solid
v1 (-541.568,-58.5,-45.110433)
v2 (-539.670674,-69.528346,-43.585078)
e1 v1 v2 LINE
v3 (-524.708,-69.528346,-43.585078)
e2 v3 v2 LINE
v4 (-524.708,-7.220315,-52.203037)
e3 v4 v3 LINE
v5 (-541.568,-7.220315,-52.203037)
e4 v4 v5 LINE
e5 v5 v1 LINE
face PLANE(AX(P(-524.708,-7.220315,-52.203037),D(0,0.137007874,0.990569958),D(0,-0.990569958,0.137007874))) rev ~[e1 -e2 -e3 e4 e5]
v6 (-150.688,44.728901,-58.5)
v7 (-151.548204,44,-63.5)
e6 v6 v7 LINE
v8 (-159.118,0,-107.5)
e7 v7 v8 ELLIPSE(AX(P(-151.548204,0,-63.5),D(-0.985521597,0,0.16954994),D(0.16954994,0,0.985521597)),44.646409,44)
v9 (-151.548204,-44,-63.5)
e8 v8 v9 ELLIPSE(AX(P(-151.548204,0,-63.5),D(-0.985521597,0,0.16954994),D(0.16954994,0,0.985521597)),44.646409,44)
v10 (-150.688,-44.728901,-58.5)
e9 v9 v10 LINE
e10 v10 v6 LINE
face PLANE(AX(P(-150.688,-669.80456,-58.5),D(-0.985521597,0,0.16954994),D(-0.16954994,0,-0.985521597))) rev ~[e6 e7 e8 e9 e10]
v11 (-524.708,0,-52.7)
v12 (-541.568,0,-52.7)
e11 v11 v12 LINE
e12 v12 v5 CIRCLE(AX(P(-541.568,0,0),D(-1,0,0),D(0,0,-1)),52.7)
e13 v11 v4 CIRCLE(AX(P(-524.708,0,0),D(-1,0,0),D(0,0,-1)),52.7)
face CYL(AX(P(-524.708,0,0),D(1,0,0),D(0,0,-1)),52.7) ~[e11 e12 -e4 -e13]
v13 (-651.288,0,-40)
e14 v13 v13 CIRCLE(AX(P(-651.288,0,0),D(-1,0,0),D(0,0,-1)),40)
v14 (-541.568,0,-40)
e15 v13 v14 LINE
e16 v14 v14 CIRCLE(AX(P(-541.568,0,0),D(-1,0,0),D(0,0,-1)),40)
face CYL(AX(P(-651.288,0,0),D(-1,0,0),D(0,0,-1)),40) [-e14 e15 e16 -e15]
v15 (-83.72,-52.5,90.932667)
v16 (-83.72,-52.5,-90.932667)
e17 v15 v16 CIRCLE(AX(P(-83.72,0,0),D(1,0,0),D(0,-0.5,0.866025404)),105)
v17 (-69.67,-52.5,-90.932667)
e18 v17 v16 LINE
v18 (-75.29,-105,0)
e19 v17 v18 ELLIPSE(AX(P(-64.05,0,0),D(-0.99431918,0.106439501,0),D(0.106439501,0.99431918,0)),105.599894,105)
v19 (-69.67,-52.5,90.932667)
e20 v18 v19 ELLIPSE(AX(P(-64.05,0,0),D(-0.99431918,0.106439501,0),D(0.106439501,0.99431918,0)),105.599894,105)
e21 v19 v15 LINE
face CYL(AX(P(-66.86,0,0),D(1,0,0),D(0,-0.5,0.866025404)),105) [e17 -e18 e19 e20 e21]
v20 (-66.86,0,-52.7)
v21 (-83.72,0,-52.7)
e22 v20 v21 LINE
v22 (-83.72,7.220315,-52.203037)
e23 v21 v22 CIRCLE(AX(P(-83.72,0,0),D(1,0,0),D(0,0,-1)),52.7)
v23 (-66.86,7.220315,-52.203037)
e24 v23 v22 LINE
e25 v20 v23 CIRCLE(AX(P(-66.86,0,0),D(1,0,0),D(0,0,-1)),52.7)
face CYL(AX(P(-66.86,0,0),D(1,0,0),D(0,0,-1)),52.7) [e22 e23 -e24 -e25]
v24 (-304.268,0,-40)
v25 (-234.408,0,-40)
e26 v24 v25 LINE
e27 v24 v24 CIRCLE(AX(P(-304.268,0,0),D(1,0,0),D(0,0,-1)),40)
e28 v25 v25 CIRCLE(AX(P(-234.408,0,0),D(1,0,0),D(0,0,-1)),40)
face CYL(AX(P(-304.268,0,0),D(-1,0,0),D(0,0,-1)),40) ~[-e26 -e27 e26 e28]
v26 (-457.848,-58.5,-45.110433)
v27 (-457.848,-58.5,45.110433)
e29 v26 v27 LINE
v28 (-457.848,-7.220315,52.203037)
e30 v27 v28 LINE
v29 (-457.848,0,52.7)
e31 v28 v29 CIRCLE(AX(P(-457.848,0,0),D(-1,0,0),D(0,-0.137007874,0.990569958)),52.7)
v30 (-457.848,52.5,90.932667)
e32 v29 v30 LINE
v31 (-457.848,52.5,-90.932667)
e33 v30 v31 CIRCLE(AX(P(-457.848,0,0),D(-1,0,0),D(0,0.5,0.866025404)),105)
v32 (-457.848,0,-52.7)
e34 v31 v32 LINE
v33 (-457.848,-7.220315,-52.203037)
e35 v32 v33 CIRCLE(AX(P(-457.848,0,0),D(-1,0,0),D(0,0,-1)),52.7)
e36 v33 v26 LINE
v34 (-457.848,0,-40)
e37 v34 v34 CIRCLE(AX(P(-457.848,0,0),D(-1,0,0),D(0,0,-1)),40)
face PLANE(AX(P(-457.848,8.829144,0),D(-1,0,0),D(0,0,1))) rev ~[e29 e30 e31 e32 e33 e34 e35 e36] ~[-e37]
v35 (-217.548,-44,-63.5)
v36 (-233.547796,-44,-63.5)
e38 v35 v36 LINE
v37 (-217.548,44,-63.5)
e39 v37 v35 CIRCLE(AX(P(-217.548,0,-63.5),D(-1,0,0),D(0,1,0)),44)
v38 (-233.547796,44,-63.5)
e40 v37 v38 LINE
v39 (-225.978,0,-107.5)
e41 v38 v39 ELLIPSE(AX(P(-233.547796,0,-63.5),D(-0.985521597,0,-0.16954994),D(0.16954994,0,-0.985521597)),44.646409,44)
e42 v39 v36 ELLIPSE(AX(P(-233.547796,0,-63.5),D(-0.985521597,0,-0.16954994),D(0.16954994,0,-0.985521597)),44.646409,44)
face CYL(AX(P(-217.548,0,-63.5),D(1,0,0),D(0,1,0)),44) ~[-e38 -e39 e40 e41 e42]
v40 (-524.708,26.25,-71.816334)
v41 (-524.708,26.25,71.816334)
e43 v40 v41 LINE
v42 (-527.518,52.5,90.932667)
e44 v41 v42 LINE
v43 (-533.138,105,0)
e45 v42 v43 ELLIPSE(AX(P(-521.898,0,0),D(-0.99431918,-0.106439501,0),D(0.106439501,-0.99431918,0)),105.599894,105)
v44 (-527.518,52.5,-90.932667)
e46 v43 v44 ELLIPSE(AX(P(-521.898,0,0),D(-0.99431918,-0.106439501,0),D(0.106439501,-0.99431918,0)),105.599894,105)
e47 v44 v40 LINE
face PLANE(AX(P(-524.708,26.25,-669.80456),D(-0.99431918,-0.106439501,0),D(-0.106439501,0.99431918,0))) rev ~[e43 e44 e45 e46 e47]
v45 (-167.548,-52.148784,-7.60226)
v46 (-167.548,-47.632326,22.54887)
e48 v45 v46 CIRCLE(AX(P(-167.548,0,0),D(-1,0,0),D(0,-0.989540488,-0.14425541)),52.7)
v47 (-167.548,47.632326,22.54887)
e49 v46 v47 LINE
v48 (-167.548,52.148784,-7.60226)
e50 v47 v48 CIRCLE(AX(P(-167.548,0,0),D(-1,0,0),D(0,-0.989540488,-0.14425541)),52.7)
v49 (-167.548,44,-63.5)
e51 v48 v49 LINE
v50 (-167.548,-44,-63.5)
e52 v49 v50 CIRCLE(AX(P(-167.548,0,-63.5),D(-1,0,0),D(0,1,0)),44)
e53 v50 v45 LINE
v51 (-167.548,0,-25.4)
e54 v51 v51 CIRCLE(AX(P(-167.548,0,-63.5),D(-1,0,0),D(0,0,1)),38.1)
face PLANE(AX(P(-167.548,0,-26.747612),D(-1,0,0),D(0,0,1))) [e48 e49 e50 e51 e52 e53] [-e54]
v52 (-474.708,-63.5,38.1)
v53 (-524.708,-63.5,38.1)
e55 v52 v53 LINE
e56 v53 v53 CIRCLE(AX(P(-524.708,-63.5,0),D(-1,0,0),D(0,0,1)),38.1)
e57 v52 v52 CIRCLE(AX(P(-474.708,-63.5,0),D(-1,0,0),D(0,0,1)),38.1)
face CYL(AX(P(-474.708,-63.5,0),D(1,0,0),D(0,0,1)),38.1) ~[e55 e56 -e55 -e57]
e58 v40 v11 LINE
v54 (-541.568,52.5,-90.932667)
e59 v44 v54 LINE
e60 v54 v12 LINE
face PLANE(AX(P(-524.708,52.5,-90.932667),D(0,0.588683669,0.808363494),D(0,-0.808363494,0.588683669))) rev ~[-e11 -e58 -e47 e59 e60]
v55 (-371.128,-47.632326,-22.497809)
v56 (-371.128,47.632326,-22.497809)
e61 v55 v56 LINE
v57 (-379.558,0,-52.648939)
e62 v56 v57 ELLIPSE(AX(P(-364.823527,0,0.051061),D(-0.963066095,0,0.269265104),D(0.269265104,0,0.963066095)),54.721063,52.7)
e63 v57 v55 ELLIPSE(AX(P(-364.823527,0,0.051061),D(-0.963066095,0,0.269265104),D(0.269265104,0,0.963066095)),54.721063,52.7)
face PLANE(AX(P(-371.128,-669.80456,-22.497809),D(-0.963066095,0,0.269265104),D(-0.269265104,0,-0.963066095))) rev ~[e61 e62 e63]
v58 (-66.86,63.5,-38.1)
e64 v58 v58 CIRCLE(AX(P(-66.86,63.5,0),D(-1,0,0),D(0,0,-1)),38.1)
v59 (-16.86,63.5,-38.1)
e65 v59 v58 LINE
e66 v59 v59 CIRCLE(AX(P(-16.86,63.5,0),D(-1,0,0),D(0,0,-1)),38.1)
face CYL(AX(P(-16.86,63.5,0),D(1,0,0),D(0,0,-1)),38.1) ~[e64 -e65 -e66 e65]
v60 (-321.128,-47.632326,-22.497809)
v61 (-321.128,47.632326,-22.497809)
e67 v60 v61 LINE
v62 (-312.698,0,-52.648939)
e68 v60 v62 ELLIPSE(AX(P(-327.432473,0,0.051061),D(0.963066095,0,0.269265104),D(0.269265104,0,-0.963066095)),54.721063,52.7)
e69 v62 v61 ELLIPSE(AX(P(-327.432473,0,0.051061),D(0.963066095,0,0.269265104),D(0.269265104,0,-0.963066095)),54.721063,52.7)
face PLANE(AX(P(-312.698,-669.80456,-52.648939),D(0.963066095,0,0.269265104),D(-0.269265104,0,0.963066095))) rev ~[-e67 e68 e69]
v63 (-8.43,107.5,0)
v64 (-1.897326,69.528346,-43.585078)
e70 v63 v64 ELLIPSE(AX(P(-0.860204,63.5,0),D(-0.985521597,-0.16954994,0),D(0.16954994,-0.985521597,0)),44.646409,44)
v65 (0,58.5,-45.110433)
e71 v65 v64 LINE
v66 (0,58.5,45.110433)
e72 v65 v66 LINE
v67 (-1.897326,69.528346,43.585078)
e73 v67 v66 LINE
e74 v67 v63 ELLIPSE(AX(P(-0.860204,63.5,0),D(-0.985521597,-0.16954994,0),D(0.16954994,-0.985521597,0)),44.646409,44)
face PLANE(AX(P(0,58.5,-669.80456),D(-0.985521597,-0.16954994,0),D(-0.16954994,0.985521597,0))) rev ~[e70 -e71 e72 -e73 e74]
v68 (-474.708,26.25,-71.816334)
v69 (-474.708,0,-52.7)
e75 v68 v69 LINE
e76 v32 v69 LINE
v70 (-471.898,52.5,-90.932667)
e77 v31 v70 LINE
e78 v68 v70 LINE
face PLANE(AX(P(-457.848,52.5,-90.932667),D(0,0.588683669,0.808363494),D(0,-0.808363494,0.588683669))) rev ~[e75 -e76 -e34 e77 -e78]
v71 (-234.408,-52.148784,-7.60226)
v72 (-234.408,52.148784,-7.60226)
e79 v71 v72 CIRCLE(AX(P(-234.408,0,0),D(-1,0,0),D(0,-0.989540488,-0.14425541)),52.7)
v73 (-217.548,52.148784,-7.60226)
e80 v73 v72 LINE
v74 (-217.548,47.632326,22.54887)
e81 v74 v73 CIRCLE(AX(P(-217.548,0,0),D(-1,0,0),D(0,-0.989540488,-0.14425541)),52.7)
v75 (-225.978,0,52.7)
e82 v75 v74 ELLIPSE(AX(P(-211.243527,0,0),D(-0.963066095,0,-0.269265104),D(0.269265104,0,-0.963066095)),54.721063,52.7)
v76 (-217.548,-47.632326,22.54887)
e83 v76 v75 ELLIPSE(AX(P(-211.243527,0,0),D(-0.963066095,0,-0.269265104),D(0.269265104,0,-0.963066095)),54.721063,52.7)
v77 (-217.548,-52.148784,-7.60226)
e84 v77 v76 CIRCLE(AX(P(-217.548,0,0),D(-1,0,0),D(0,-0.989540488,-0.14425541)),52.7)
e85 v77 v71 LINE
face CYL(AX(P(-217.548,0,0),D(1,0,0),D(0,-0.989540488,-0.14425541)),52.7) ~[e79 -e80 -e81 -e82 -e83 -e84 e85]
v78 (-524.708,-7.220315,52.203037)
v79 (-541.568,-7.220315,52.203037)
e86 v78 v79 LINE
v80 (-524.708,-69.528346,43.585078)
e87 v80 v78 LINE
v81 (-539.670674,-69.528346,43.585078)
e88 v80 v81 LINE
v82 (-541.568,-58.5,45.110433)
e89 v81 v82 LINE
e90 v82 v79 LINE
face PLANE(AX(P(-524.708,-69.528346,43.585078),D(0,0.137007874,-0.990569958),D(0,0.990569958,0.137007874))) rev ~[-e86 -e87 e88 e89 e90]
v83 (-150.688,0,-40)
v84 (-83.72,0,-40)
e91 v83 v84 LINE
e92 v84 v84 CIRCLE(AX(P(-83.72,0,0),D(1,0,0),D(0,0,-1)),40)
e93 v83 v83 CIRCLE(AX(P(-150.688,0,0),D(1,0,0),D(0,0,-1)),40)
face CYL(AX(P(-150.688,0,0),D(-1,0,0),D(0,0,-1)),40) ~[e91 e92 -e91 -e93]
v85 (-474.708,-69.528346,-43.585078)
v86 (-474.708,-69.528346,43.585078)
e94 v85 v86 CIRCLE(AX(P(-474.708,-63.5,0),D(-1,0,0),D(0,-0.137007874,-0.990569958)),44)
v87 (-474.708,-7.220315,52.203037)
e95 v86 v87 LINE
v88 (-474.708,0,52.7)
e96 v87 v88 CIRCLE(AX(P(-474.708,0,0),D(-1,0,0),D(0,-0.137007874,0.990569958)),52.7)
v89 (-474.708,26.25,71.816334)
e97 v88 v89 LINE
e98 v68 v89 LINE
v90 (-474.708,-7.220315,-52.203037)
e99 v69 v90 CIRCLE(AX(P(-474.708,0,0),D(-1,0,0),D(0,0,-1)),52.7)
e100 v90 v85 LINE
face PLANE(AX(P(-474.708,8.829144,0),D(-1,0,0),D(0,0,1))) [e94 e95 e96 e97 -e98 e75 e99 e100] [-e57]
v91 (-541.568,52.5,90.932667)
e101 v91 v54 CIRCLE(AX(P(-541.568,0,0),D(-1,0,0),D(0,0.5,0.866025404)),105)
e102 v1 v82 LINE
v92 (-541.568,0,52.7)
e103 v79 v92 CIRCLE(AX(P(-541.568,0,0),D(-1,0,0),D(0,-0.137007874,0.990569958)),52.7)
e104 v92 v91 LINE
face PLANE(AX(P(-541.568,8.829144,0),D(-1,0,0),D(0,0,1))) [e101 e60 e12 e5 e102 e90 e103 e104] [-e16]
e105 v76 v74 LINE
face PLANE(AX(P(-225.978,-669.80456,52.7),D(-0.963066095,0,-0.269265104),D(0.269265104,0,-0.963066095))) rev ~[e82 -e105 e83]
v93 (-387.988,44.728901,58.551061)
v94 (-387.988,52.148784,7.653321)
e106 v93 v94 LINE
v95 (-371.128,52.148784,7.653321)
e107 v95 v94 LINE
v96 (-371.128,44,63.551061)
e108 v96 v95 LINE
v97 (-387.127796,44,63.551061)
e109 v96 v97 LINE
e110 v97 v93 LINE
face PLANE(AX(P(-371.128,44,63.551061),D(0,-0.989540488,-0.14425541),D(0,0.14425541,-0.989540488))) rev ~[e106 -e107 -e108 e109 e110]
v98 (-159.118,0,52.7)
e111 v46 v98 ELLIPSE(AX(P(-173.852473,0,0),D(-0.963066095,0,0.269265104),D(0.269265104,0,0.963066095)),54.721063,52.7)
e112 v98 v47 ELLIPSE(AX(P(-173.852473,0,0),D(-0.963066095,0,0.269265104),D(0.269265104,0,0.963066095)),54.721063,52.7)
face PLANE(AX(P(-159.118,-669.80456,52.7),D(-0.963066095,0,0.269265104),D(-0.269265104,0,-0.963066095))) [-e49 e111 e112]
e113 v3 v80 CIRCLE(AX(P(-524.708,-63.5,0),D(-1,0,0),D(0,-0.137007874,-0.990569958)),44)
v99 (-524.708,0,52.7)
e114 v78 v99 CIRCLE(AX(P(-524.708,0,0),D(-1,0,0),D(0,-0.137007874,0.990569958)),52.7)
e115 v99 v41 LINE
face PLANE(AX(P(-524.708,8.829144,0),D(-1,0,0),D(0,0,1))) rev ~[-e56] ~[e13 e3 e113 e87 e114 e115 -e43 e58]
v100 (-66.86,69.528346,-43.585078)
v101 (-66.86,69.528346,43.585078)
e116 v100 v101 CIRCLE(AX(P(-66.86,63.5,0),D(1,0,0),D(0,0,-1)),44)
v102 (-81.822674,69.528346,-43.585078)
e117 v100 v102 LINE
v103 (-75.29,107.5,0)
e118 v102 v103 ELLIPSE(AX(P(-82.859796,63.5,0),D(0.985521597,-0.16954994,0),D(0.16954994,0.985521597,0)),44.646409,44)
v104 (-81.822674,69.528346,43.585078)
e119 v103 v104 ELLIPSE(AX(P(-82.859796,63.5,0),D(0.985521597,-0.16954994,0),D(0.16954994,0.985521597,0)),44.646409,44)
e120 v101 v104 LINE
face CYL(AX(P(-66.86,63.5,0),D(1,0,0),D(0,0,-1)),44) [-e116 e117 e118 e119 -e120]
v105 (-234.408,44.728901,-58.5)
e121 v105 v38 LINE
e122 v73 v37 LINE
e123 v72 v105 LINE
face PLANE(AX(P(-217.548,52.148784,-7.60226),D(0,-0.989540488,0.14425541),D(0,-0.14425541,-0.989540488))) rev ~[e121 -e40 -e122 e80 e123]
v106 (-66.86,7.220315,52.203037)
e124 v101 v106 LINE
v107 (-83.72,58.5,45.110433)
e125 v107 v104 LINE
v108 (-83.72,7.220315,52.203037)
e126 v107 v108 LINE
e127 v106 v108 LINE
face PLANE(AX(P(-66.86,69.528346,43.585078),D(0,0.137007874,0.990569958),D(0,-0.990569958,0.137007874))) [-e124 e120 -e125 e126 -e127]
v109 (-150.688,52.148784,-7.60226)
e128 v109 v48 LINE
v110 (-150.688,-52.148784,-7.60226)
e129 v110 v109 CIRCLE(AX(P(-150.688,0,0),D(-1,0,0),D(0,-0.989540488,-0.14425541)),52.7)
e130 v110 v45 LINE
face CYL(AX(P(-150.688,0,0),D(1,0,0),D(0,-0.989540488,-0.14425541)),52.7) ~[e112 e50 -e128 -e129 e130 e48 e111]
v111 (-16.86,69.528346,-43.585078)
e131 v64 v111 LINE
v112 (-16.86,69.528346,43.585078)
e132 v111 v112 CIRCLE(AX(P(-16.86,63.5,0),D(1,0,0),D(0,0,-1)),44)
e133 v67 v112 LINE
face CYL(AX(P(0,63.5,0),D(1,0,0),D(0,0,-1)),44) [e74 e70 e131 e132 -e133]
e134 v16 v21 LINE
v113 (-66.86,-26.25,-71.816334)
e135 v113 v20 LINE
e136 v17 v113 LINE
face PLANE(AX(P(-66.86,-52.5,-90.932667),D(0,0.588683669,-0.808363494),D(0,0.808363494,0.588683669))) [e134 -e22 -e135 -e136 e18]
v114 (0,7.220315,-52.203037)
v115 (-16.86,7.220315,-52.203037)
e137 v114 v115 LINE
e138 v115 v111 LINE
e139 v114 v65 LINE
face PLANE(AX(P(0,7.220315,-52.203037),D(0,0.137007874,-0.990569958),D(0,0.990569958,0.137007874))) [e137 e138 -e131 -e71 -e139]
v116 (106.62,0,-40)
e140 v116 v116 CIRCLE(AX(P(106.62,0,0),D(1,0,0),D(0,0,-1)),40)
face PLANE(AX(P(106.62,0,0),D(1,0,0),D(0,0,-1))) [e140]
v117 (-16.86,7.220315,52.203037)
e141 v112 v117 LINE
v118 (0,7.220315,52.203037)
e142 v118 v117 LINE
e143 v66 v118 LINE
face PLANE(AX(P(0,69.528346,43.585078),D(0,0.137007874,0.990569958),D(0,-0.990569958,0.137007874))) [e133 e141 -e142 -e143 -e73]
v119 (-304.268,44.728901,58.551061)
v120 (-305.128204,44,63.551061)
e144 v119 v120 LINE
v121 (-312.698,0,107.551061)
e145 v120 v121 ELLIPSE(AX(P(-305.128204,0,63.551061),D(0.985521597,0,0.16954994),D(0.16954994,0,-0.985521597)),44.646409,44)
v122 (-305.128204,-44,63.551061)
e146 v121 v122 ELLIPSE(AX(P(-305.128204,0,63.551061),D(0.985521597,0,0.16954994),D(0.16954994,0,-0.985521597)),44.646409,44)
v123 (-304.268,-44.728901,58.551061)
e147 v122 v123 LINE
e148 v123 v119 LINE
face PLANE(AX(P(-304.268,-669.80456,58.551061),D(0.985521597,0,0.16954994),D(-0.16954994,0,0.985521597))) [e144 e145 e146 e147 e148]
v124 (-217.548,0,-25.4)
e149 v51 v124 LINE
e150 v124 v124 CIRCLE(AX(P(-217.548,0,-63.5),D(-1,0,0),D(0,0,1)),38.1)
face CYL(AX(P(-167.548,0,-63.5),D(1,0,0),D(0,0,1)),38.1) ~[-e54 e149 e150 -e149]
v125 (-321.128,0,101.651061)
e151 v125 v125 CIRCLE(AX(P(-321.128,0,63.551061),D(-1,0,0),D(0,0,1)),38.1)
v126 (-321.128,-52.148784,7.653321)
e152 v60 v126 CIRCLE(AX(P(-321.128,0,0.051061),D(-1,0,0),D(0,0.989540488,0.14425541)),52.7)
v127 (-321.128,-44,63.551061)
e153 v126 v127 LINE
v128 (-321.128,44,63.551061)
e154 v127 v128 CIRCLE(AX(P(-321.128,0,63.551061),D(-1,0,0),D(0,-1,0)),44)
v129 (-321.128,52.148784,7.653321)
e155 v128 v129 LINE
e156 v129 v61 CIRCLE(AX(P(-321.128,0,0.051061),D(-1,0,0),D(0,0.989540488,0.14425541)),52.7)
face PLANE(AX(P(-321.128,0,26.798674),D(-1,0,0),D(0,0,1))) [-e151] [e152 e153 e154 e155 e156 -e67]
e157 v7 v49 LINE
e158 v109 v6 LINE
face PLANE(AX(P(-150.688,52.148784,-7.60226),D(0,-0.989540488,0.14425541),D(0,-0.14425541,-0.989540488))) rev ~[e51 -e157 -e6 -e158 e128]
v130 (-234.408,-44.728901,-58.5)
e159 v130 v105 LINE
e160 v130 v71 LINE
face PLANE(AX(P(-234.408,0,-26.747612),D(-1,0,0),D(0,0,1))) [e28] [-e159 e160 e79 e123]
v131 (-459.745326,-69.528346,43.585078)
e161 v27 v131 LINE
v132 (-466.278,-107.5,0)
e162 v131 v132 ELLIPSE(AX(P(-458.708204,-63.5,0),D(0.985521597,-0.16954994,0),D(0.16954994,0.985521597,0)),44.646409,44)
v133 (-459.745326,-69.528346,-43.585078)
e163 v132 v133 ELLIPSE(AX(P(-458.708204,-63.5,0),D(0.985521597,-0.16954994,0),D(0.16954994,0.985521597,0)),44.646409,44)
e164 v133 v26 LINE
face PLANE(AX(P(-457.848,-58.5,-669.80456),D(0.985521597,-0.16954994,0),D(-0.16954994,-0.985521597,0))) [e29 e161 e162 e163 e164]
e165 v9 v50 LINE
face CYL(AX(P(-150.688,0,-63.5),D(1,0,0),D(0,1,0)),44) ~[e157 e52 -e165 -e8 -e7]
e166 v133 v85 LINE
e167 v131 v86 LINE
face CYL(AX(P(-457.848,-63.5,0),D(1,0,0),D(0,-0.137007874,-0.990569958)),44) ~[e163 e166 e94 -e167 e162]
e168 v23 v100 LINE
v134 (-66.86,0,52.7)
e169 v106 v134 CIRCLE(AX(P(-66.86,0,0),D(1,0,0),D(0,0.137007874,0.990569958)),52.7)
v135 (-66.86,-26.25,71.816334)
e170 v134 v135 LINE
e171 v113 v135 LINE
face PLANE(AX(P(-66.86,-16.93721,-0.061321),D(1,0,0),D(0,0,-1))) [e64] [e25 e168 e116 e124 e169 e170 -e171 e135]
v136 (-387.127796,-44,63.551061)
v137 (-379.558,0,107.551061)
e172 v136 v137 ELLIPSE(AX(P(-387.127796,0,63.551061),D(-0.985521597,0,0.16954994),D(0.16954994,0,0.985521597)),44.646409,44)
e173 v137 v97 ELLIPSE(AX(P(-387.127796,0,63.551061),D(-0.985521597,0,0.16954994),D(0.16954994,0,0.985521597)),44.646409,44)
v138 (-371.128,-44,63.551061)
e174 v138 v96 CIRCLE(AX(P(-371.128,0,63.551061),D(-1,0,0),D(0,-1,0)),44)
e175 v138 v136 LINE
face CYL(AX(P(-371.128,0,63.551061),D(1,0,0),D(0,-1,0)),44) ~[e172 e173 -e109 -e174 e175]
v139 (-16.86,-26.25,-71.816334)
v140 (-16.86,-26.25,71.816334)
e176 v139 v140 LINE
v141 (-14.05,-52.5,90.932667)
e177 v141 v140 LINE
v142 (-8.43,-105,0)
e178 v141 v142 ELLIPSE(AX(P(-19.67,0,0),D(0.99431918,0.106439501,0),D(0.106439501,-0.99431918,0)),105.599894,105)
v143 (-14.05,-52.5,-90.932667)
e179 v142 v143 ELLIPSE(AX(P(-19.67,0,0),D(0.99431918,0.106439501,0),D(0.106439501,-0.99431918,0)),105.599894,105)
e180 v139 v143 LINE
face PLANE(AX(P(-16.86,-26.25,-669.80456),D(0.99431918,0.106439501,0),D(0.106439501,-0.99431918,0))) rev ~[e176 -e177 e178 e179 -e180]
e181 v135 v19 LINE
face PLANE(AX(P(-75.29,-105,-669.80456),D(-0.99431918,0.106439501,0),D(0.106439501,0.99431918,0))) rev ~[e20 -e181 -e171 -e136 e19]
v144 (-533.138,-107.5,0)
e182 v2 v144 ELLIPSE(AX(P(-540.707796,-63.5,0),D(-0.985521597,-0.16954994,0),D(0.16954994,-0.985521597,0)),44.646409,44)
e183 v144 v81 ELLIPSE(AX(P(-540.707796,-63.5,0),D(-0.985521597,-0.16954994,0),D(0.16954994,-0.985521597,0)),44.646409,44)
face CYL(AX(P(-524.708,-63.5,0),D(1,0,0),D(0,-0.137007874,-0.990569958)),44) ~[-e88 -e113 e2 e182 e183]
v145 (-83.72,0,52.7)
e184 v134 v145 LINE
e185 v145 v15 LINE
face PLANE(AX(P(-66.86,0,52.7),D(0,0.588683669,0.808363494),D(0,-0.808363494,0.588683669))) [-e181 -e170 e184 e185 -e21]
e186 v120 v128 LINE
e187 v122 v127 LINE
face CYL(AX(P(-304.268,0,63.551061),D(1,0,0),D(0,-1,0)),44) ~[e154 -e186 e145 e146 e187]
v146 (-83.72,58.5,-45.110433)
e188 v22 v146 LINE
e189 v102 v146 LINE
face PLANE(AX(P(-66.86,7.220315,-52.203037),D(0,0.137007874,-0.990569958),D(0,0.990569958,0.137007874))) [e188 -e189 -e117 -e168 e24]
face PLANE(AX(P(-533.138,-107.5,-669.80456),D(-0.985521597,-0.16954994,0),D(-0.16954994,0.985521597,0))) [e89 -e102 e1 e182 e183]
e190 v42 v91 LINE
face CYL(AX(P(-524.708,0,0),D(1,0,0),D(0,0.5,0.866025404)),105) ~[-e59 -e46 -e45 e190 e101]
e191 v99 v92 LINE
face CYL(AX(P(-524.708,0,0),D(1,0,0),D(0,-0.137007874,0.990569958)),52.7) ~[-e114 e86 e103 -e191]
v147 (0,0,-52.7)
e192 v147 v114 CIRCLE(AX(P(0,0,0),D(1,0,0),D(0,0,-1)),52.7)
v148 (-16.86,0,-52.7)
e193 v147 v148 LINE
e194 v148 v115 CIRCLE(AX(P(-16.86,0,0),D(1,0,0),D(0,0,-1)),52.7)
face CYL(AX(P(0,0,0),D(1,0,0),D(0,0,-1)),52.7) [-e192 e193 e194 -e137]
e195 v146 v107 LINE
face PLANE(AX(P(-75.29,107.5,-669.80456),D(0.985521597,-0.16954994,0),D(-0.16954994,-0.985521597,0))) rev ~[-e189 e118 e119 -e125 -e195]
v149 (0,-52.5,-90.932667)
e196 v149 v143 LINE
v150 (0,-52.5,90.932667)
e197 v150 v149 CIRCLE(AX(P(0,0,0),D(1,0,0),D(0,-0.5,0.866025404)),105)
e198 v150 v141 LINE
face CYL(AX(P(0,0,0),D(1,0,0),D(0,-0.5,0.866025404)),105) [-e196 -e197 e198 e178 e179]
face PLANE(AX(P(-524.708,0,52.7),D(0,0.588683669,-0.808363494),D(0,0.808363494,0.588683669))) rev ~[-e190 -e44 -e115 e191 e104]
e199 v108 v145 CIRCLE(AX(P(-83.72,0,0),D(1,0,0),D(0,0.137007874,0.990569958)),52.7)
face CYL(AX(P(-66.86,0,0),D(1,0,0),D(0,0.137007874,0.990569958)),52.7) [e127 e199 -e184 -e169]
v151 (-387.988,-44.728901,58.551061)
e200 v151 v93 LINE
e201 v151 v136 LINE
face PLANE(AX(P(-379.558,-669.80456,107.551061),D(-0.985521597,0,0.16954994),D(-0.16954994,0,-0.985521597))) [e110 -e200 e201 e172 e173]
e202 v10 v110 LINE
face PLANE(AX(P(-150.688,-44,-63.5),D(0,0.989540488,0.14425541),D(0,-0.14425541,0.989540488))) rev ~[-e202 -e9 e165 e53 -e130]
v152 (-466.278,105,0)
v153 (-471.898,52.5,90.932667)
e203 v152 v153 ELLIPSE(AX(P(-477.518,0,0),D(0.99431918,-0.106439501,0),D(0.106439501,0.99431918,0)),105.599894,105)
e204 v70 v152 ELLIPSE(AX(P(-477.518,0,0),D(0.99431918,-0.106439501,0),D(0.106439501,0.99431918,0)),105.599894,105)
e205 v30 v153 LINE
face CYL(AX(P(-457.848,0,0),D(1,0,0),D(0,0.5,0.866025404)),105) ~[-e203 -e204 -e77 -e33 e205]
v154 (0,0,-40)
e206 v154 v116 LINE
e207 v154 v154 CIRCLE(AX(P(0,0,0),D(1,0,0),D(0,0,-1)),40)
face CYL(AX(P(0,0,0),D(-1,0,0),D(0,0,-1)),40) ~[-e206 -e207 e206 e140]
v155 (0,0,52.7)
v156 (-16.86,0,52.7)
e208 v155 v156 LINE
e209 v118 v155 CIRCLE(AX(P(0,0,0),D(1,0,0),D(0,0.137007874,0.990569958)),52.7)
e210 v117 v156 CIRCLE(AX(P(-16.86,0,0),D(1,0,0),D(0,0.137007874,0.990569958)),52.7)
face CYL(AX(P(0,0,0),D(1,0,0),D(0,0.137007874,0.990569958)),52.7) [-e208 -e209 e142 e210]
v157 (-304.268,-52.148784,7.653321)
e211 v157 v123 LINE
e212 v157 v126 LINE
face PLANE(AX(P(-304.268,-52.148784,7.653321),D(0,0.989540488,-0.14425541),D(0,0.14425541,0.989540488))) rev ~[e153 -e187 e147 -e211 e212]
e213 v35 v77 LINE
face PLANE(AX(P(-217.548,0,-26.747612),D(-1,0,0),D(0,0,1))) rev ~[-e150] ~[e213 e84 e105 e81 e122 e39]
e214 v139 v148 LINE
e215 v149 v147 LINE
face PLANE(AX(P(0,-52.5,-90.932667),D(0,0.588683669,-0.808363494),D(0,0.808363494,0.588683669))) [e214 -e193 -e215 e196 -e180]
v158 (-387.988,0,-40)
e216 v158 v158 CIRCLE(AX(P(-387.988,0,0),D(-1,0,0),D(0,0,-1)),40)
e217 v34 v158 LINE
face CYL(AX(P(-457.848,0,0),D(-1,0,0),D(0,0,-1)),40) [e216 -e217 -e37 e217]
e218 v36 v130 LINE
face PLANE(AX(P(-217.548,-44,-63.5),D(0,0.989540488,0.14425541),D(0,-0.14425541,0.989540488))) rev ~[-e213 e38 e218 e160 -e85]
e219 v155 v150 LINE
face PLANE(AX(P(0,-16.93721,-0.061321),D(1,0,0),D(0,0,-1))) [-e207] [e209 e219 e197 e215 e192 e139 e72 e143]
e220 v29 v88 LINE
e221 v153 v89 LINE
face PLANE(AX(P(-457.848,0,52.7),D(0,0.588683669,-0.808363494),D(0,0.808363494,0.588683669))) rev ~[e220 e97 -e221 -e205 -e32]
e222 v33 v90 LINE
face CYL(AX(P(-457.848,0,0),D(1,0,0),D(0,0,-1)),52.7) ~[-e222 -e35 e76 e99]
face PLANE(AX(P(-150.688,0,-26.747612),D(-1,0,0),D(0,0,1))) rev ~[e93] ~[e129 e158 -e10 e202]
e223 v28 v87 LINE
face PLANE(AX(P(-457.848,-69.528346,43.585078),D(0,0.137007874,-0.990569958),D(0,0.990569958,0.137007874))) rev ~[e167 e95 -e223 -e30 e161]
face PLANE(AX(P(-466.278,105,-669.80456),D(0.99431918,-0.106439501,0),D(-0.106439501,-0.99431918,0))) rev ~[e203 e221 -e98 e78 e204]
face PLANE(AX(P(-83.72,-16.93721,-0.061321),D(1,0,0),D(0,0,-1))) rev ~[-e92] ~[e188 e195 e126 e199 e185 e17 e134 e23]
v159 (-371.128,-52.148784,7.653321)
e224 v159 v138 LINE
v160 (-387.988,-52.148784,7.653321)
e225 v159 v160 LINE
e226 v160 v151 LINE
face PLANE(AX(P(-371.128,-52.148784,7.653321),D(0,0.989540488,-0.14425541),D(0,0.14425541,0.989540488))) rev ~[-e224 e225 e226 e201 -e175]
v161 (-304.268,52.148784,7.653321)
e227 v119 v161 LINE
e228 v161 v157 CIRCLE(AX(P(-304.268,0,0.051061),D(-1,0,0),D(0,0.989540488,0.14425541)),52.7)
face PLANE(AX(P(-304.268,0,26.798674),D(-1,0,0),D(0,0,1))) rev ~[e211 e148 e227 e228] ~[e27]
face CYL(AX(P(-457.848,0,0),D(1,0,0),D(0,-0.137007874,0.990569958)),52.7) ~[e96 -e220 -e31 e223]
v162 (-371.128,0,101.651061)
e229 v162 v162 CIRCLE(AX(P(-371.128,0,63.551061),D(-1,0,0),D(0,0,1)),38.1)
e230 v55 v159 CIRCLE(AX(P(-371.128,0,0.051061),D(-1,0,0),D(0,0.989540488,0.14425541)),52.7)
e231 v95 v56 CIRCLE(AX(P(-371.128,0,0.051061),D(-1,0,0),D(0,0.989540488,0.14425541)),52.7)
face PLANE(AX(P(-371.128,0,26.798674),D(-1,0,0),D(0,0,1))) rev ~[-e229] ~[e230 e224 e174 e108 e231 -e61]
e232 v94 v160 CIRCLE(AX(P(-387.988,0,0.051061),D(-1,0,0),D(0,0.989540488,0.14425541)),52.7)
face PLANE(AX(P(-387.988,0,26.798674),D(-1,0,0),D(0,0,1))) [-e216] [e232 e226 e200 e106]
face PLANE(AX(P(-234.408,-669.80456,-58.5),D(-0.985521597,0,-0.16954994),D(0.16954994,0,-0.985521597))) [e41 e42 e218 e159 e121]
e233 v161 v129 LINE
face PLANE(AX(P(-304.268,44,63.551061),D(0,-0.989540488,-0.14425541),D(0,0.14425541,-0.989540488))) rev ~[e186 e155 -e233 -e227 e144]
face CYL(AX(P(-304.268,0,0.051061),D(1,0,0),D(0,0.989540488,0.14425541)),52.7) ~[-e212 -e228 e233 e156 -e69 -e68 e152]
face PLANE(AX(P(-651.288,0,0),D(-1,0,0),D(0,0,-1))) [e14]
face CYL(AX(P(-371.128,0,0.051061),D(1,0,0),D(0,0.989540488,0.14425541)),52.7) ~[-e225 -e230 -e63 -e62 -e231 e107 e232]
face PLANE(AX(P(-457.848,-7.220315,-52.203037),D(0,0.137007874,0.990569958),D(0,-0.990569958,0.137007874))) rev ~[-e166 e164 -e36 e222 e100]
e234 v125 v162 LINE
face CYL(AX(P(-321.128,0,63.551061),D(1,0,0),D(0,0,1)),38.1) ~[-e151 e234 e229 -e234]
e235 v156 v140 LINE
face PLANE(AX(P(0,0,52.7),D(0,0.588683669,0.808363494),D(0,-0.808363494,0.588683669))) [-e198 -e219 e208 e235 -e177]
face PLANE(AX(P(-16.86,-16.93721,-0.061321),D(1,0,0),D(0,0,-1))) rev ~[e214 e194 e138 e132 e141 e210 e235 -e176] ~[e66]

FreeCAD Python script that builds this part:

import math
import FreeCAD as App
import Part
import Sketcher
from FreeCAD import Vector


def add_polygon(sketch, points):
    """Adds a closed chain of lines whose ends are joined by coincident constraints."""
    first, n = sketch.GeometryCount, len(points)
    for a, b in zip(points, points[1:] + points[:1]):
        sketch.addGeometry(Part.LineSegment(App.Vector(*a, 0), App.Vector(*b, 0)), False)
    for i in range(n):
        sketch.addConstraint(Sketcher.Constraint("Coincident", first + i, 2, first + (i + 1) % n, 1))

doc = App.newDocument("Part")
body = doc.addObject("PartDesign::Body", "Body")

# Sketch on YZ plane
sketch1 = doc.addObject("Sketcher::SketchObject", "Sketch")
body.addObject(sketch1)
sketch1.AttachmentSupport = (doc.YZ_Plane, [""])
sketch1.MapMode = "FlatFace"
sketch1.addGeometry(Part.Circle(Vector(0, 0, 0), Vector(0, 0, 1), 40), False)
sketch1.addConstraint([
    Sketcher.Constraint("Coincident", 0, 3, -1, 1),
    Sketcher.Constraint("Diameter", 0, 80.0),
])
pad1 = doc.addObject("PartDesign::Pad", "Pad")
body.addObject(pad1)
pad1.Profile = sketch1
pad1.Length = 106.62

# Sketch on YZ plane
sketch2 = doc.addObject("Sketcher::SketchObject", "Sketch001")
body.addObject(sketch2)
sketch2.AttachmentSupport = (doc.YZ_Plane, [""])
sketch2.MapMode = "FlatFace"
sketch2.addGeometry([
    Part.LineSegment(Vector(7, -52, 0), Vector(70, -44, 0)),  # 0
    Part.ArcOfCircle(Part.Circle(Vector(64, 0, 0), Vector(0, 0, 1), 44), math.radians(-82), math.radians(82)),  # 1
    Part.LineSegment(Vector(70, 44, 0), Vector(7, 52, 0)),  # 2
    Part.ArcOfCircle(Part.Circle(Vector(0, 0, 0), Vector(0, 0, 1), 53), math.radians(82.13), math.radians(90)),  # 3
    Part.LineSegment(Vector(0, 53, 0), Vector(-52, 91, 0)),  # 4
    Part.ArcOfCircle(Part.Circle(Vector(0, 0, 0), Vector(0, 0, 1), 105), math.radians(120), math.radians(240)),  # 5
    Part.LineSegment(Vector(-52, -91, 0), Vector(0, -53, 0)),  # 6
    Part.ArcOfCircle(Part.Circle(Vector(0, 0, 0), Vector(0, 0, 1), 53), math.radians(-90), math.radians(-82.13)),  # 7
], False)
sketch2.addConstraint([
    Sketcher.Constraint("Tangent", 0, 2, 1, 1),
    Sketcher.Constraint("Tangent", 1, 2, 2, 1),
    Sketcher.Constraint("Tangent", 2, 2, 3, 1),
    Sketcher.Constraint("Coincident", 3, 2, 4, 1),
    Sketcher.Constraint("Coincident", 4, 2, 5, 1),
    Sketcher.Constraint("Coincident", 5, 2, 6, 1),
    Sketcher.Constraint("Coincident", 6, 2, 7, 1),
    Sketcher.Constraint("Tangent", 7, 2, 0, 1),
    Sketcher.Constraint("Coincident", 3, 3, -1, 1),
    Sketcher.Constraint("Coincident", 5, 3, -1, 1),
    Sketcher.Constraint("Coincident", 7, 3, -1, 1),
    Sketcher.Constraint("Equal", 3, 7),
    Sketcher.Constraint("PointOnObject", 1, 3, -1),
    Sketcher.Constraint("PointOnObject", 3, 2, -2),
    Sketcher.Constraint("PointOnObject", 6, 2, -2),
    Sketcher.Constraint("Vertical", 4, 2, 5, 2),
    Sketcher.Constraint("Radius", 1, 44.0),
    Sketcher.Constraint("Radius", 5, 105.0),
    Sketcher.Constraint("Radius", 3, 52.7),
    Sketcher.Constraint("DistanceX", 5, 2, 1, 3, 116.0),
    Sketcher.Constraint("DistanceX", -1, 1, 1, 3, 63.5),
])
pad2 = doc.addObject("PartDesign::Pad", "Pad001")
body.addObject(pad2)
pad2.Profile = sketch2
pad2.Length = 16.86
pad2.Reversed = True

# Sketch on YZ plane
sketch3 = doc.addObject("Sketcher::SketchObject", "Sketch002")
body.addObject(sketch3)
sketch3.AttachmentSupport = (doc.YZ_Plane, [""])
sketch3.MapMode = "FlatFace"
sketch3.AttachmentOffset = App.Placement(Vector(0, 0, -16.86), App.Rotation())
sketch3.addGeometry(Part.Circle(Vector(64, 0, 0), Vector(0, 0, 1), 38), False)
sketch3.addConstraint([
    Sketcher.Constraint("PointOnObject", 0, 3, -1),
    Sketcher.Constraint("Diameter", 0, 76.2),
    Sketcher.Constraint("DistanceX", -1, 1, 0, 3, 63.5),
])
pad3 = doc.addObject("PartDesign::Pad", "Pad002")
body.addObject(pad3)
pad3.Profile = sketch3
pad3.Length = 50
pad3.Reversed = True
doc.recompute()

linearpattern = doc.addObject("PartDesign::LinearPattern", "LinearPattern")
body.addObject(linearpattern)
linearpattern.Originals = [pad2]
linearpattern.Direction = (doc.X_Axis, [""])
linearpattern.Mode = "offset"
linearpattern.Offset = 66.86
linearpattern.Occurrences = 2
linearpattern.Reversed = True
body.Tip = linearpattern

# Sketch on YZ plane
sketch4 = doc.addObject("Sketcher::SketchObject", "Sketch003")
body.addObject(sketch4)
sketch4.AttachmentSupport = (doc.YZ_Plane, [""])
sketch4.MapMode = "FlatFace"
sketch4.AttachmentOffset = App.Placement(Vector(0, 0, -150.688), App.Rotation())
sketch4.addGeometry(Part.Circle(Vector(0, 0, 0), Vector(0, 0, 1), 40), False)
sketch4.addConstraint([
    Sketcher.Constraint("Coincident", 0, 3, -1, 1),
    Sketcher.Constraint("Diameter", 0, 80.0),
])
pad4 = doc.addObject("PartDesign::Pad", "Pad003")
body.addObject(pad4)
pad4.Profile = sketch4
pad4.Length = 66.968

# Sketch on YZ plane
sketch5 = doc.addObject("Sketcher::SketchObject", "Sketch004")
body.addObject(sketch5)
sketch5.AttachmentSupport = (doc.YZ_Plane, [""])
sketch5.MapMode = "FlatFace"
sketch5.AttachmentOffset = App.Placement(Vector(0, 0, -150.688), App.Rotation())
sketch5.addGeometry([
    Part.LineSegment(Vector(52, -8, 0), Vector(44, -64, 0)),
    Part.ArcOfCircle(Part.Circle(Vector(0, -64, 0), Vector(0, 0, 1), 44), math.radians(180), math.radians(360)),
    Part.LineSegment(Vector(-44, -64, 0), Vector(-52, -8, 0)),
    Part.ArcOfCircle(Part.Circle(Vector(0, 0, 0), Vector(0, 0, 1), 53), math.radians(-8), math.radians(188)),
], False)
sketch5.addConstraint([
    Sketcher.Constraint("Coincident", 0, 2, 1, 2),
    Sketcher.Constraint("Coincident", 1, 1, 2, 1),
    Sketcher.Constraint("Tangent", 2, 2, 3, 2),
    Sketcher.Constraint("Tangent", 3, 1, 0, 1),
    Sketcher.Constraint("Coincident", 3, 3, -1, 1),
    Sketcher.Constraint("Symmetric", 0, 2, 1, 1, -2),
    Sketcher.Constraint("Horizontal", 1, 3, 0, 2),
    Sketcher.Constraint("Radius", 1, 44.0),
    Sketcher.Constraint("Radius", 3, 52.7),
    Sketcher.Constraint("DistanceY", 1, 3, -1, 1, 63.5),
])
pad5 = doc.addObject("PartDesign::Pad", "Pad004")
body.addObject(pad5)
pad5.Profile = sketch5
pad5.Length = 16.86
pad5.Reversed = True

# Sketch on YZ plane
sketch6 = doc.addObject("Sketcher::SketchObject", "Sketch005")
body.addObject(sketch6)
sketch6.AttachmentSupport = (doc.YZ_Plane, [""])
sketch6.MapMode = "FlatFace"
sketch6.AttachmentOffset = App.Placement(Vector(0, 0, -167.548), App.Rotation())
sketch6.addGeometry(Part.Circle(Vector(0, -64, 0), Vector(0, 0, 1), 38), False)
sketch6.addConstraint([
    Sketcher.Constraint("PointOnObject", 0, 3, -2),
    Sketcher.Constraint("Diameter", 0, 76.2),
    Sketcher.Constraint("DistanceY", 0, 3, -1, 1, 63.5),
])
pad6 = doc.addObject("PartDesign::Pad", "Pad005")
body.addObject(pad6)
pad6.Profile = sketch6
pad6.Length = 50
pad6.Reversed = True
doc.recompute()

linearpattern2 = doc.addObject("PartDesign::LinearPattern", "LinearPattern001")
body.addObject(linearpattern2)
linearpattern2.Originals = [pad5]
linearpattern2.Direction = (doc.X_Axis, [""])
linearpattern2.Mode = "offset"
linearpattern2.Offset = 66.86
linearpattern2.Occurrences = 2
linearpattern2.Reversed = True
body.Tip = linearpattern2

# Sketch on YZ plane
sketch7 = doc.addObject("Sketcher::SketchObject", "Sketch006")
body.addObject(sketch7)
sketch7.AttachmentSupport = (doc.YZ_Plane, [""])
sketch7.MapMode = "FlatFace"
sketch7.AttachmentOffset = App.Placement(Vector(0, 0, -304.268), App.Rotation())
sketch7.addGeometry(Part.Circle(Vector(0, 0, 0), Vector(0, 0, 1), 40), False)
sketch7.addConstraint([
    Sketcher.Constraint("Coincident", 0, 3, -1, 1),
    Sketcher.Constraint("Diameter", 0, 80.0),
])
pad7 = doc.addObject("PartDesign::Pad", "Pad006")
body.addObject(pad7)
pad7.Profile = sketch7
pad7.Length = 69.86

# Sketch on YZ plane
sketch8 = doc.addObject("Sketcher::SketchObject", "Sketch007")
body.addObject(sketch8)
sketch8.AttachmentSupport = (doc.YZ_Plane, [""])
sketch8.MapMode = "FlatFace"
sketch8.AttachmentOffset = App.Placement(Vector(0, 0, -304.268), App.Rotation())
sketch8.addGeometry([
    Part.LineSegment(Vector(-52, 8, 0), Vector(-44, 64, 0)),
    Part.ArcOfCircle(Part.Circle(Vector(0, 64, 0), Vector(0, 0, 1), 44), math.radians(0), math.radians(180)),
    Part.LineSegment(Vector(44, 64, 0), Vector(52, 8, 0)),
    Part.ArcOfCircle(Part.Circle(Vector(0, 0, 0), Vector(0, 0, 1), 53), math.radians(172), math.radians(368)),
], False)
sketch8.addConstraint([
    Sketcher.Constraint("Coincident", 0, 2, 1, 2),
    Sketcher.Constraint("Coincident", 1, 1, 2, 1),
    Sketcher.Constraint("Tangent", 2, 2, 3, 2),
    Sketcher.Constraint("Tangent", 3, 1, 0, 1),
    Sketcher.Constraint("Symmetric", 0, 2, 1, 1, -2),
    Sketcher.Constraint("PointOnObject", 3, 3, -2),
    Sketcher.Constraint("Horizontal", 1, 3, 0, 2),
    Sketcher.Constraint("Radius", 1, 44.0),
    Sketcher.Constraint("Radius", 3, 52.7),
    Sketcher.Constraint("DistanceY", 3, 3, 1, 3, 63.5),
    Sketcher.Constraint("DistanceY", -1, 1, 1, 3, 63.551061),
])
pad8 = doc.addObject("PartDesign::Pad", "Pad007")
body.addObject(pad8)
pad8.Profile = sketch8
pad8.Length = 16.86
pad8.Reversed = True

# Sketch on YZ plane
sketch9 = doc.addObject("Sketcher::SketchObject", "Sketch008")
body.addObject(sketch9)
sketch9.AttachmentSupport = (doc.YZ_Plane, [""])
sketch9.MapMode = "FlatFace"
sketch9.AttachmentOffset = App.Placement(Vector(0, 0, -321.128), App.Rotation())
sketch9.addGeometry(Part.Circle(Vector(0, 64, 0), Vector(0, 0, 1), 38), False)
sketch9.addConstraint([
    Sketcher.Constraint("PointOnObject", 0, 3, -2),
    Sketcher.Constraint("Diameter", 0, 76.2),
    Sketcher.Constraint("DistanceY", -1, 1, 0, 3, 63.551061),
])
pad9 = doc.addObject("PartDesign::Pad", "Pad008")
body.addObject(pad9)
pad9.Profile = sketch9
pad9.Length = 50
pad9.Reversed = True

# Sketch on YZ plane
sketch10 = doc.addObject("Sketcher::SketchObject", "Sketch009")
body.addObject(sketch10)
sketch10.AttachmentSupport = (doc.YZ_Plane, [""])
sketch10.MapMode = "FlatFace"
sketch10.AttachmentOffset = App.Placement(Vector(0, 0, -371.128), App.Rotation())
sketch10.addGeometry([
    Part.LineSegment(Vector(-52, 8, 0), Vector(-44, 64, 0)),
    Part.ArcOfCircle(Part.Circle(Vector(0, 64, 0), Vector(0, 0, 1), 44), math.radians(0), math.radians(180)),
    Part.LineSegment(Vector(44, 64, 0), Vector(52, 8, 0)),
    Part.ArcOfCircle(Part.Circle(Vector(0, 0, 0), Vector(0, 0, 1), 53), math.radians(172), math.radians(368)),
], False)
sketch10.addConstraint([
    Sketcher.Constraint("Coincident", 0, 2, 1, 2),
    Sketcher.Constraint("Coincident", 1, 1, 2, 1),
    Sketcher.Constraint("Tangent", 2, 2, 3, 2),
    Sketcher.Constraint("Tangent", 3, 1, 0, 1),
    Sketcher.Constraint("Symmetric", 0, 2, 1, 1, -2),
    Sketcher.Constraint("PointOnObject", 3, 3, -2),
    Sketcher.Constraint("Horizontal", 1, 3, 0, 2),
    Sketcher.Constraint("Radius", 1, 44.0),
    Sketcher.Constraint("Radius", 3, 52.7),
    Sketcher.Constraint("DistanceY", 3, 3, 1, 3, 63.5),
    Sketcher.Constraint("DistanceY", -1, 1, 1, 3, 63.551061),
])
pad10 = doc.addObject("PartDesign::Pad", "Pad009")
body.addObject(pad10)
pad10.Profile = sketch10
pad10.Length = 16.86
pad10.Reversed = True

# Sketch on YZ plane
sketch11 = doc.addObject("Sketcher::SketchObject", "Sketch010")
body.addObject(sketch11)
sketch11.AttachmentSupport = (doc.YZ_Plane, [""])
sketch11.MapMode = "FlatFace"
sketch11.AttachmentOffset = App.Placement(Vector(0, 0, -457.848), App.Rotation())
sketch11.addGeometry(Part.Circle(Vector(0, 0, 0), Vector(0, 0, 1), 40), False)
sketch11.addConstraint([
    Sketcher.Constraint("Coincident", 0, 3, -1, 1),
    Sketcher.Constraint("Diameter", 0, 80.0),
])
pad11 = doc.addObject("PartDesign::Pad", "Pad010")
body.addObject(pad11)
pad11.Profile = sketch11
pad11.Length = 69.86

# Sketch on YZ plane
sketch12 = doc.addObject("Sketcher::SketchObject", "Sketch011")
body.addObject(sketch12)
sketch12.AttachmentSupport = (doc.YZ_Plane, [""])
sketch12.MapMode = "FlatFace"
sketch12.AttachmentOffset = App.Placement(Vector(0, 0, -457.848), App.Rotation())
sketch12.addGeometry([
    Part.LineSegment(Vector(0, 53, 0), Vector(52, 91, 0)),  # 0
    Part.ArcOfCircle(Part.Circle(Vector(0, 0, 0), Vector(0, 0, 1), 105), math.radians(-60), math.radians(60)),  # 1
    Part.LineSegment(Vector(52, -91, 0), Vector(0, -53, 0)),  # 2
    Part.ArcOfCircle(Part.Circle(Vector(0, 0, 0), Vector(0, 0, 1), 53), math.radians(-97.87), math.radians(-90)),  # 3
    Part.LineSegment(Vector(-7, -52, 0), Vector(-70, -44, 0)),  # 4
    Part.ArcOfCircle(Part.Circle(Vector(-64, 0, 0), Vector(0, 0, 1), 44), math.radians(98), math.radians(262)),  # 5
    Part.LineSegment(Vector(-70, 44, 0), Vector(-7, 52, 0)),  # 6
    Part.ArcOfCircle(Part.Circle(Vector(0, 0, 0), Vector(0, 0, 1), 53), math.radians(90), math.radians(97.87)),  # 7
], False)
sketch12.addConstraint([
    Sketcher.Constraint("Coincident", 0, 2, 1, 2),
    Sketcher.Constraint("Coincident", 1, 1, 2, 1),
    Sketcher.Constraint("Coincident", 2, 2, 3, 2),
    Sketcher.Constraint("Tangent", 3, 1, 4, 1),
    Sketcher.Constraint("Tangent", 4, 2, 5, 2),
    Sketcher.Constraint("Tangent", 5, 1, 6, 1),
    Sketcher.Constraint("Tangent", 6, 2, 7, 2),
    Sketcher.Constraint("Coincident", 7, 1, 0, 1),
    Sketcher.Constraint("Coincident", 1, 3, -1, 1),
    Sketcher.Constraint("Coincident", 3, 3, -1, 1),
    Sketcher.Constraint("Coincident", 7, 3, -1, 1),
    Sketcher.Constraint("Equal", 3, 7),
    Sketcher.Constraint("PointOnObject", 5, 3, -1),
    Sketcher.Constraint("PointOnObject", 2, 2, -2),
    Sketcher.Constraint("PointOnObject", 7, 1, -2),
    Sketcher.Constraint("Vertical", 0, 2, 1, 1),
    Sketcher.Constraint("Radius", 1, 105.0),
    Sketcher.Constraint("Radius", 5, 44.0),
    Sketcher.Constraint("Radius", 3, 52.7),
    Sketcher.Constraint("DistanceX", 5, 3, 0, 2, 116.0),
    Sketcher.Constraint("DistanceX", 5, 3, -1, 1, 63.5),
])
pad12 = doc.addObject("PartDesign::Pad", "Pad011")
body.addObject(pad12)
pad12.Profile = sketch12
pad12.Length = 16.86
pad12.Reversed = True

# Sketch on YZ plane
sketch13 = doc.addObject("Sketcher::SketchObject", "Sketch012")
body.addObject(sketch13)
sketch13.AttachmentSupport = (doc.YZ_Plane, [""])
sketch13.MapMode = "FlatFace"
sketch13.AttachmentOffset = App.Placement(Vector(0, 0, -474.708), App.Rotation())
sketch13.addGeometry(Part.Circle(Vector(-64, 0, 0), Vector(0, 0, 1), 38), False)
sketch13.addConstraint([
    Sketcher.Constraint("PointOnObject", 0, 3, -1),
    Sketcher.Constraint("Diameter", 0, 76.2),
    Sketcher.Constraint("DistanceX", 0, 3, -1, 1, 63.5),
])
pad13 = doc.addObject("PartDesign::Pad", "Pad012")
body.addObject(pad13)
pad13.Profile = sketch13
pad13.Length = 50
pad13.Reversed = True

# Sketch on YZ plane
sketch14 = doc.addObject("Sketcher::SketchObject", "Sketch013")
body.addObject(sketch14)
sketch14.AttachmentSupport = (doc.YZ_Plane, [""])
sketch14.MapMode = "FlatFace"
sketch14.AttachmentOffset = App.Placement(Vector(0, 0, -524.708), App.Rotation())
sketch14.addGeometry([
    Part.LineSegment(Vector(0, 53, 0), Vector(52, 91, 0)),  # 0
    Part.ArcOfCircle(Part.Circle(Vector(0, 0, 0), Vector(0, 0, 1), 105), math.radians(-60), math.radians(60)),  # 1
    Part.LineSegment(Vector(52, -91, 0), Vector(0, -53, 0)),  # 2
    Part.ArcOfCircle(Part.Circle(Vector(0, 0, 0), Vector(0, 0, 1), 53), math.radians(-97.87), math.radians(-90)),  # 3
    Part.LineSegment(Vector(-7, -52, 0), Vector(-70, -44, 0)),  # 4
    Part.ArcOfCircle(Part.Circle(Vector(-64, 0, 0), Vector(0, 0, 1), 44), math.radians(98), math.radians(262)),  # 5
    Part.LineSegment(Vector(-70, 44, 0), Vector(-7, 52, 0)),  # 6
    Part.ArcOfCircle(Part.Circle(Vector(0, 0, 0), Vector(0, 0, 1), 53), math.radians(90), math.radians(97.87)),  # 7
], False)
sketch14.addConstraint([
    Sketcher.Constraint("Coincident", 0, 2, 1, 2),
    Sketcher.Constraint("Coincident", 1, 1, 2, 1),
    Sketcher.Constraint("Coincident", 2, 2, 3, 2),
    Sketcher.Constraint("Tangent", 3, 1, 4, 1),
    Sketcher.Constraint("Tangent", 4, 2, 5, 2),
    Sketcher.Constraint("Tangent", 5, 1, 6, 1),
    Sketcher.Constraint("Tangent", 6, 2, 7, 2),
    Sketcher.Constraint("Coincident", 7, 1, 0, 1),
    Sketcher.Constraint("Coincident", 1, 3, -1, 1),
    Sketcher.Constraint("Coincident", 3, 3, -1, 1),
    Sketcher.Constraint("Coincident", 7, 3, -1, 1),
    Sketcher.Constraint("Equal", 3, 7),
    Sketcher.Constraint("PointOnObject", 5, 3, -1),
    Sketcher.Constraint("PointOnObject", 2, 2, -2),
    Sketcher.Constraint("PointOnObject", 7, 1, -2),
    Sketcher.Constraint("Vertical", 0, 2, 1, 1),
    Sketcher.Constraint("Radius", 1, 105.0),
    Sketcher.Constraint("Radius", 5, 44.0),
    Sketcher.Constraint("Radius", 3, 52.7),
    Sketcher.Constraint("DistanceX", 5, 3, 0, 2, 116.0),
    Sketcher.Constraint("DistanceX", 5, 3, -1, 1, 63.5),
])
pad14 = doc.addObject("PartDesign::Pad", "Pad013")
body.addObject(pad14)
pad14.Profile = sketch14
pad14.Length = 16.86
pad14.Reversed = True

# Sketch on YZ plane
sketch15 = doc.addObject("Sketcher::SketchObject", "Sketch014")
body.addObject(sketch15)
sketch15.AttachmentSupport = (doc.YZ_Plane, [""])
sketch15.MapMode = "FlatFace"
sketch15.AttachmentOffset = App.Placement(Vector(0, 0, -651.288), App.Rotation())
sketch15.addGeometry(Part.Circle(Vector(0, 0, 0), Vector(0, 0, 1), 40), False)
sketch15.addConstraint([
    Sketcher.Constraint("Coincident", 0, 3, -1, 1),
    Sketcher.Constraint("Diameter", 0, 80.0),
])
pad15 = doc.addObject("PartDesign::Pad", "Pad014")
body.addObject(pad15)
pad15.Profile = sketch15
pad15.Length = 109.72

# Sketch on XY plane
sketch16 = doc.addObject("Sketcher::SketchObject", "Sketch015")
body.addObject(sketch16)
sketch16.AttachmentSupport = (doc.XY_Plane, [""])
sketch16.MapMode = "FlatFace"
add_polygon(sketch16, [(-525, 105), (-533, 105), (-525, 26)])  # lines 0-2
add_polygon(sketch16, [(-466, 105), (-475, 105), (-475, 26)])  # lines 3-5
add_polygon(sketch16, [(-542, -108), (-533, -108), (-542, -58)])  # lines 6-8
add_polygon(sketch16, [(-466, -108), (-458, -108), (-458, -58)])  # lines 9-11
add_polygon(sketch16, [(-67, -26), (-75, -105), (-67, -105)])  # lines 12-14
add_polygon(sketch16, [(-8, -105), (-17, -26), (-17, -105)])  # lines 15-17
add_polygon(sketch16, [(0, 108), (-8, 108), (0, 58)])  # lines 18-20
add_polygon(sketch16, [(-75, 108), (-84, 108), (-84, 58)])  # lines 21-23
sketch16.addConstraint([
    Sketcher.Constraint("Horizontal", 0),
    Sketcher.Constraint("Vertical", 2),
    Sketcher.Constraint("Horizontal", 3),
    Sketcher.Constraint("Vertical", 4),
    Sketcher.Constraint("Horizontal", 6),
    Sketcher.Constraint("Vertical", 8),
    Sketcher.Constraint("Horizontal", 9),
    Sketcher.Constraint("Vertical", 10),
    Sketcher.Constraint("Horizontal", 13),
    Sketcher.Constraint("Vertical", 14),
    Sketcher.Constraint("Vertical", 16),
    Sketcher.Constraint("Horizontal", 17),
    Sketcher.Constraint("Horizontal", 18),
    Sketcher.Constraint("Vertical", 20),
    Sketcher.Constraint("Horizontal", 21),
    Sketcher.Constraint("Vertical", 22),
    Sketcher.Constraint("PointOnObject", 19, 2, -2),
    Sketcher.Constraint("Parallel", 5, 12),
    Sketcher.Constraint("Parallel", 1, 15),
    Sketcher.Constraint("Parallel", 7, 19),
    Sketcher.Constraint("Parallel", 11, 23),
    Sketcher.Constraint("Horizontal", 2, 2, 3, 2),
    Sketcher.Constraint("Horizontal", 1, 2, 4, 2),
    Sketcher.Constraint("Horizontal", 8, 2, 9, 2),
    Sketcher.Constraint("Horizontal", 7, 2, 10, 2),
    Sketcher.Constraint("Horizontal", 14, 2, 15, 2),
    Sketcher.Constraint("Horizontal", 13, 2, 16, 2),
    Sketcher.Constraint("Horizontal", 20, 2, 21, 2),
    Sketcher.Constraint("Horizontal", 19, 2, 22, 2),
    Sketcher.Constraint("Vertical", 0, 2, 6, 2),
    Sketcher.Constraint("Vertical", 5, 2, 11, 2),
    Sketcher.Constraint("Vertical", 17, 2, 18, 2),
    Sketcher.Constraint("Vertical", 12, 2, 23, 2),
    Sketcher.Constraint("Equal", 0, 3),
    Sketcher.Constraint("Equal", 3, 6),
    Sketcher.Constraint("Equal", 6, 9),
    Sketcher.Constraint("Equal", 9, 13),
    Sketcher.Constraint("Equal", 17, 18),
    Sketcher.Constraint("DistanceY", 8, 2, 8, 1, 49.0),
    Sketcher.Constraint("DistanceY", -1, 1, 0, 2, 105.0),
    Sketcher.Constraint("DistanceY", 12, 2, -1, 1, 105.0),
    Sketcher.Constraint("DistanceX", 2, 2, 3, 2, 50.0),
    Sketcher.Constraint("DistanceX", 14, 2, 15, 2, 50.0),
    Sketcher.Constraint("DistanceX", 0, 2, 0, 1, 8.43),
    Sketcher.Constraint("DistanceY", 2, 1, 2, 2, 78.75),
    Sketcher.Constraint("DistanceY", 6, 2, -1, 1, 107.5),
    Sketcher.Constraint("DistanceY", -1, 1, 18, 2, 107.5),
    Sketcher.Constraint("DistanceX", 0, 2, -1, 1, 533.138),
])
pocket1 = doc.addObject("PartDesign::Pocket", "Pocket")
body.addObject(pocket1)
pocket1.Profile = sketch16
pocket1.Type = "ThroughAll"
pocket1.Midplane = True

# Sketch on XZ plane
sketch17 = doc.addObject("Sketcher::SketchObject", "Sketch016")
body.addObject(sketch17)
sketch17.AttachmentSupport = (doc.XZ_Plane, [""])
sketch17.MapMode = "FlatFace"
add_polygon(sketch17, [(-380, 108), (-388, 59), (-388, 108)])  # lines 0-2
add_polygon(sketch17, [(-304, 108), (-304, 59), (-313, 108)])  # lines 3-5
add_polygon(sketch17, [(-371, -53), (-380, -53), (-371, -22)])  # lines 6-8
add_polygon(sketch17, [(-321, -22), (-313, -53), (-321, -53)])  # lines 9-11
add_polygon(sketch17, [(-151, -108), (-159, -108), (-151, -58)])  # lines 12-14
add_polygon(sketch17, [(-226, -108), (-234, -108), (-234, -58)])  # lines 15-17
add_polygon(sketch17, [(-226, 53), (-218, 53), (-218, 23)])  # lines 18-20
add_polygon(sketch17, [(-159, 53), (-168, 23), (-168, 53)])  # lines 21-23
sketch17.addConstraint([
    Sketcher.Constraint("Vertical", 1),
    Sketcher.Constraint("Horizontal", 2),
    Sketcher.Constraint("Vertical", 3),
    Sketcher.Constraint("Horizontal", 5),
    Sketcher.Constraint("Horizontal", 6),
    Sketcher.Constraint("Vertical", 8),
    Sketcher.Constraint("Horizontal", 10),
    Sketcher.Constraint("Vertical", 11),
    Sketcher.Constraint("Horizontal", 12),
    Sketcher.Constraint("Vertical", 14),
    Sketcher.Constraint("Horizontal", 15),
    Sketcher.Constraint("Vertical", 16),
    Sketcher.Constraint("Horizontal", 18),
    Sketcher.Constraint("Vertical", 19),
    Sketcher.Constraint("Vertical", 22),
    Sketcher.Constraint("Horizontal", 23),
    Sketcher.Constraint("Parallel", 0, 13),
    Sketcher.Constraint("Parallel", 4, 17),
    Sketcher.Constraint("Parallel", 9, 20),
    Sketcher.Constraint("Parallel", 7, 21),
    Sketcher.Constraint("Horizontal", 0, 2, 3, 2),
    Sketcher.Constraint("Horizontal", 2, 2, 4, 2),
    Sketcher.Constraint("Horizontal", 8, 2, 9, 2),
    Sketcher.Constraint("Horizontal", 7, 2, 11, 2),
    Sketcher.Constraint("Horizontal", 14, 2, 15, 2),
    Sketcher.Constraint("Horizontal", 13, 2, 16, 2),
    Sketcher.Constraint("Horizontal", 19, 2, 21, 2),
    Sketcher.Constraint("Horizontal", 20, 2, 22, 2),
    Sketcher.Constraint("Vertical", 2, 2, 6, 2),
    Sketcher.Constraint("Vertical", 4, 2, 9, 2),
    Sketcher.Constraint("Vertical", 17, 2, 20, 2),
    Sketcher.Constraint("Vertical", 12, 2, 23, 2),
    Sketcher.Constraint("Equal", 2, 5),
    Sketcher.Constraint("Equal", 5, 6),
    Sketcher.Constraint("Equal", 6, 10),
    Sketcher.Constraint("Equal", 10, 12),
    Sketcher.Constraint("Equal", 15, 18),
    Sketcher.Constraint("DistanceY", 1, 1, 1, 2, 49.0),
    Sketcher.Constraint("DistanceX", 8, 2, 10, 2, 50.0),
    Sketcher.Constraint("DistanceX", 19, 2, 21, 2, 50.0),
    Sketcher.Constraint("DistanceX", 2, 1, 2, 2, 8.43),
    Sketcher.Constraint("DistanceY", 12, 2, -1, 1, 107.5),
    Sketcher.Constraint("DistanceY", -1, 1, 18, 2, 52.7),
    Sketcher.Constraint("DistanceY", 6, 2, 0, 2, 111.2),
    Sketcher.Constraint("DistanceX", 9, 2, 12, 2, 153.58),
    Sketcher.Constraint("DistanceX", 0, 2, -1, 1, 387.988),
    Sketcher.Constraint("DistanceY", 8, 2, 8, 1, 30.15113),
    Sketcher.Constraint("DistanceY", -1, 1, 0, 2, 58.551061),
])
pocket2 = doc.addObject("PartDesign::Pocket", "Pocket001")
body.addObject(pocket2)
pocket2.Profile = sketch17
pocket2.Type = "ThroughAll"
pocket2.Midplane = True

doc.recompute()
